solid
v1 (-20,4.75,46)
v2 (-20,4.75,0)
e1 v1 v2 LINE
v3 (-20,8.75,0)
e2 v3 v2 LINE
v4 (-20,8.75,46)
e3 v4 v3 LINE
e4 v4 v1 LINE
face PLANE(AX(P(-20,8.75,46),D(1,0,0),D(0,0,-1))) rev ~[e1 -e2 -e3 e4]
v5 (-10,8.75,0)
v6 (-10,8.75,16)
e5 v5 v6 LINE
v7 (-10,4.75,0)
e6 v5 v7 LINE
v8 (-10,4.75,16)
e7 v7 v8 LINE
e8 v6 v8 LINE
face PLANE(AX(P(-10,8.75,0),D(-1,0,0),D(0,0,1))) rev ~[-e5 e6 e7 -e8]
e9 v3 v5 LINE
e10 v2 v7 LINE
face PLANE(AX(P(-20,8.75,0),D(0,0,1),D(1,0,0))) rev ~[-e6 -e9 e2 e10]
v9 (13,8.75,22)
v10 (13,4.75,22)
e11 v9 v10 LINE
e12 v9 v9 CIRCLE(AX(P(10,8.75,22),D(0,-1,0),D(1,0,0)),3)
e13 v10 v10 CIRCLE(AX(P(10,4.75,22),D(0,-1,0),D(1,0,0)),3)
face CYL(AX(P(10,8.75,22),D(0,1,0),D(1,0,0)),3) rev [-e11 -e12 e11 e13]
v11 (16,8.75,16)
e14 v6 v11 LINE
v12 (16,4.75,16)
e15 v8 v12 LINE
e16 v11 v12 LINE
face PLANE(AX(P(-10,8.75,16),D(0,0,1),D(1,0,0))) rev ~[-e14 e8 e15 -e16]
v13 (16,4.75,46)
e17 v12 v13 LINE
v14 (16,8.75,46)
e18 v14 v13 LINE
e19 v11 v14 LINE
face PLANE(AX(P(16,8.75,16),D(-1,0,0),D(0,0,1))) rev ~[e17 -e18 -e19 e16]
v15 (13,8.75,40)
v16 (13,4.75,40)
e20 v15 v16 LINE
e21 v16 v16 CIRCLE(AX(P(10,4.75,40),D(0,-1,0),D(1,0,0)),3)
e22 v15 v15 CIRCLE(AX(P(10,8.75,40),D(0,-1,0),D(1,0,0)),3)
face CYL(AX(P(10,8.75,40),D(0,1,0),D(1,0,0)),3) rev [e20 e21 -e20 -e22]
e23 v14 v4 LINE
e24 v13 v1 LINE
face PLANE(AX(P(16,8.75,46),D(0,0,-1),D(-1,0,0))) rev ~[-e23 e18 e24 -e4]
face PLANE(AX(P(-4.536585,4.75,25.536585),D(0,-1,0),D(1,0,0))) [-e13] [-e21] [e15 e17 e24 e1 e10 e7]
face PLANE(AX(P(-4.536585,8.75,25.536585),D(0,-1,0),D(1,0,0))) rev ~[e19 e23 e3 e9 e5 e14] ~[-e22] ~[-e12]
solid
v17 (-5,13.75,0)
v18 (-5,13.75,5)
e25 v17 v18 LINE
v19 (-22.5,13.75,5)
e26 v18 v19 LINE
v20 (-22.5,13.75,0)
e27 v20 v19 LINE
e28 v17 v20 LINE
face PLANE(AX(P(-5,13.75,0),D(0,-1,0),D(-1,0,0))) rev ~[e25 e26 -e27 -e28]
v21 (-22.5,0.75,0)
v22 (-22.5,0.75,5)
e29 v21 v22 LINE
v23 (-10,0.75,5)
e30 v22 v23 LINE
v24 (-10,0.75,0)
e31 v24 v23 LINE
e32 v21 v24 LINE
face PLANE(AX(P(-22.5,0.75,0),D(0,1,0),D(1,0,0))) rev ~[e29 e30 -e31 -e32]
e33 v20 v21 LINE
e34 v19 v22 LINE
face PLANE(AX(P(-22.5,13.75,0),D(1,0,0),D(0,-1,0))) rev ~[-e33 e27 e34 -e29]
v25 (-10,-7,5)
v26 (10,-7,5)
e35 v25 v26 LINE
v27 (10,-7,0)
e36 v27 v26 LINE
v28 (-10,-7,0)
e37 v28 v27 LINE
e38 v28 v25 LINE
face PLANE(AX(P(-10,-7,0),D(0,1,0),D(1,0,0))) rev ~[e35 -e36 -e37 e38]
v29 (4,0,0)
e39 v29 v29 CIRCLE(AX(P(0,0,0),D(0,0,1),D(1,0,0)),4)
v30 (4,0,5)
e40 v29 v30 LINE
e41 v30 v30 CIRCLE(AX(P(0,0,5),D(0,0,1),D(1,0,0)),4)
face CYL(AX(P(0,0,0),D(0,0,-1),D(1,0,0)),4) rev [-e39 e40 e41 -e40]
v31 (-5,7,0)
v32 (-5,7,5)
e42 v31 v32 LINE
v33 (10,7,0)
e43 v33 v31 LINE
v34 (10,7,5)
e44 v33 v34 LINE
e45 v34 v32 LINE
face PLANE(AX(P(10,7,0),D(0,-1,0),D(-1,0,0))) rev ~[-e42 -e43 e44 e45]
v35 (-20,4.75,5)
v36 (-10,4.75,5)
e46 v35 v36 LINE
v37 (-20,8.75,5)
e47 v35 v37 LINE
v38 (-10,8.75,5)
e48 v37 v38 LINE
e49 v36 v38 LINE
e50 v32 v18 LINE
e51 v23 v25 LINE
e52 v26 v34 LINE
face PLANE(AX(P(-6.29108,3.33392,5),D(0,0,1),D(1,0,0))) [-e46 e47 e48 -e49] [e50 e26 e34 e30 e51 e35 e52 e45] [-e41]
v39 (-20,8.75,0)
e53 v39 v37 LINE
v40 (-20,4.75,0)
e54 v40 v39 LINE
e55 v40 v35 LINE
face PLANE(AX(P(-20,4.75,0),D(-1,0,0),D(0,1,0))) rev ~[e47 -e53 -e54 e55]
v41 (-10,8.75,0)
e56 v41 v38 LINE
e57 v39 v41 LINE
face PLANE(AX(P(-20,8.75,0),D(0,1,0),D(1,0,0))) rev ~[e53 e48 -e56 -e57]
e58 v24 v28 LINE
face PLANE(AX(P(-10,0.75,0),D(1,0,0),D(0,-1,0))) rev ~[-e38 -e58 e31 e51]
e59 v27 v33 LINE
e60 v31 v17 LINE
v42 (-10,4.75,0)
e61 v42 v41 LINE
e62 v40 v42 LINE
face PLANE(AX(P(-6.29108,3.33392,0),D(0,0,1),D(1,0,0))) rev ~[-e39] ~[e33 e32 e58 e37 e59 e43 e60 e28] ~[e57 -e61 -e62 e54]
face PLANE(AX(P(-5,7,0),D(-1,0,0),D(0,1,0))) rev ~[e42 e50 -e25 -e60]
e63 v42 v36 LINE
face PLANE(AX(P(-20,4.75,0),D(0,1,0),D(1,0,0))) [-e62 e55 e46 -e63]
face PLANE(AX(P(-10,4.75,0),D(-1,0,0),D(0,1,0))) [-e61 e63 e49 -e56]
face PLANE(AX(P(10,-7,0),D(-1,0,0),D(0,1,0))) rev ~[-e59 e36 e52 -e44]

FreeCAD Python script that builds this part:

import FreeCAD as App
import Part
import Sketcher
from FreeCAD import Vector


def add_polygon(sketch, points):
    """Adds a closed chain of lines whose ends are joined by coincident constraints."""
    first, n = sketch.GeometryCount, len(points)
    for a, b in zip(points, points[1:] + points[:1]):
        sketch.addGeometry(Part.LineSegment(App.Vector(*a, 0), App.Vector(*b, 0)), False)
    for i in range(n):
        sketch.addConstraint(Sketcher.Constraint("Coincident", first + i, 2, first + (i + 1) % n, 1))

doc = App.newDocument("Part")
body = doc.addObject("PartDesign::Body", "Body")

# Sketch on XY plane
sketch1 = body.newObject("Sketcher::SketchObject", "Sketch")
sketch1.AttachmentSupport = (doc.getObject("XY_Plane"), [""])
sketch1.MapMode = "FlatFace"
add_polygon(sketch1, [(10, 7), (-5, 7), (-5, 13.8), (-22.5, 13.8), (-22.5, 0.8), (-10, 0.8), (-10, -7), (10, -7)])  # lines 0-7
sketch1.addGeometry(Part.Circle(Vector(0, 0, 0), Vector(0, 0, 1), 4), False)  # 8
add_polygon(sketch1, [(-10, 4.8), (-20, 4.8), (-20, 8.8), (-10, 8.8)])  # lines 9-12
sketch1.addConstraint([
    Sketcher.Constraint("Horizontal", 0),
    Sketcher.Constraint("Vertical", 1),
    Sketcher.Constraint("Horizontal", 2),
    Sketcher.Constraint("Vertical", 3),
    Sketcher.Constraint("Horizontal", 4),
    Sketcher.Constraint("Vertical", 5),
    Sketcher.Constraint("Horizontal", 6),
    Sketcher.Constraint("Vertical", 7),
    Sketcher.Constraint("Horizontal", 9),
    Sketcher.Constraint("Vertical", 10),
    Sketcher.Constraint("Horizontal", 11),
    Sketcher.Constraint("Vertical", 12),
    Sketcher.Constraint("Coincident", 8, 3, -1, 1),
    Sketcher.Constraint("Symmetric", 5, 2, 7, 2, -1, 1),
    Sketcher.Constraint("Vertical", 5, 2, 11, 2),
    Sketcher.Constraint("Diameter", 8, 8.0),
    Sketcher.Constraint("DistanceX", 0, 2, 0, 1, 15.0),
    Sketcher.Constraint("DistanceX", 6, 1, 6, 2, 20.0),
    Sketcher.Constraint("DistanceX", 9, 2, 9, 1, 10.0),
    Sketcher.Constraint("DistanceY", 3, 2, 3, 1, 13.0),
    Sketcher.Constraint("DistanceY", 7, 1, 7, 2, 14.0),
    Sketcher.Constraint("DistanceY", 10, 1, 10, 2, 4.0),
    Sketcher.Constraint("DistanceX", 2, 2, 2, 1, 17.5),
    Sketcher.Constraint("DistanceY", 3, 2, 9, 2, 4.0),
    Sketcher.Constraint("DistanceY", 1, 1, 1, 2, 6.75),
])
pad1 = body.newObject("PartDesign::Pad", "Pad")
pad1.Profile = sketch1
pad1.Length = 5
body2 = doc.addObject("PartDesign::Body", "Body001")

# Sketch on XZ plane
sketch2 = body2.newObject("Sketcher::SketchObject", "Sketch001")
sketch2.AttachmentSupport = (doc.getObject("XZ_Plane001"), [""])
sketch2.MapMode = "FlatFace"
sketch2.AttachmentOffset = App.Placement(Vector(0, 0, -8.75), App.Rotation())
add_polygon(sketch2, [(-20, 0), (-10, 0), (-10, 16), (16, 16), (16, 46), (-20, 46)])  # lines 0-5
sketch2.addGeometry(Part.Circle(Vector(10, 22, 0), Vector(0, 0, 1), 3), False)  # 6
sketch2.addGeometry(Part.Circle(Vector(10, 40, 0), Vector(0, 0, 1), 3), False)  # 7
sketch2.addConstraint([
    Sketcher.Constraint("Horizontal", 0),
    Sketcher.Constraint("Vertical", 1),
    Sketcher.Constraint("Horizontal", 2),
    Sketcher.Constraint("Vertical", 3),
    Sketcher.Constraint("Horizontal", 4),
    Sketcher.Constraint("Vertical", 5),
    Sketcher.Constraint("Equal", 6, 7),
    Sketcher.Constraint("PointOnObject", 0, 2, -1),
    Sketcher.Constraint("Vertical", 6, 3, 7, 3),
    Sketcher.Constraint("Diameter", 6, 6.0),
    Sketcher.Constraint("DistanceX", 0, 1, 0, 2, 10.0),
    Sketcher.Constraint("DistanceX", 2, 1, 2, 2, 26.0),
    Sketcher.Constraint("DistanceY", 1, 1, 1, 2, 16.0),
    Sketcher.Constraint("DistanceY", 3, 1, 3, 2, 30.0),
    Sketcher.Constraint("DistanceX", -1, 1, 6, 3, 10.0),
    Sketcher.Constraint("DistanceY", -1, 1, 6, 3, 22.0),
    Sketcher.Constraint("DistanceY", -1, 1, 7, 3, 40.0),
    Sketcher.Constraint("DistanceX", 0, 2, -1, 1, 10.0),
])
pad2 = body2.newObject("PartDesign::Pad", "Pad001")
pad2.Profile = sketch2
pad2.Length = 4

doc.recompute()
